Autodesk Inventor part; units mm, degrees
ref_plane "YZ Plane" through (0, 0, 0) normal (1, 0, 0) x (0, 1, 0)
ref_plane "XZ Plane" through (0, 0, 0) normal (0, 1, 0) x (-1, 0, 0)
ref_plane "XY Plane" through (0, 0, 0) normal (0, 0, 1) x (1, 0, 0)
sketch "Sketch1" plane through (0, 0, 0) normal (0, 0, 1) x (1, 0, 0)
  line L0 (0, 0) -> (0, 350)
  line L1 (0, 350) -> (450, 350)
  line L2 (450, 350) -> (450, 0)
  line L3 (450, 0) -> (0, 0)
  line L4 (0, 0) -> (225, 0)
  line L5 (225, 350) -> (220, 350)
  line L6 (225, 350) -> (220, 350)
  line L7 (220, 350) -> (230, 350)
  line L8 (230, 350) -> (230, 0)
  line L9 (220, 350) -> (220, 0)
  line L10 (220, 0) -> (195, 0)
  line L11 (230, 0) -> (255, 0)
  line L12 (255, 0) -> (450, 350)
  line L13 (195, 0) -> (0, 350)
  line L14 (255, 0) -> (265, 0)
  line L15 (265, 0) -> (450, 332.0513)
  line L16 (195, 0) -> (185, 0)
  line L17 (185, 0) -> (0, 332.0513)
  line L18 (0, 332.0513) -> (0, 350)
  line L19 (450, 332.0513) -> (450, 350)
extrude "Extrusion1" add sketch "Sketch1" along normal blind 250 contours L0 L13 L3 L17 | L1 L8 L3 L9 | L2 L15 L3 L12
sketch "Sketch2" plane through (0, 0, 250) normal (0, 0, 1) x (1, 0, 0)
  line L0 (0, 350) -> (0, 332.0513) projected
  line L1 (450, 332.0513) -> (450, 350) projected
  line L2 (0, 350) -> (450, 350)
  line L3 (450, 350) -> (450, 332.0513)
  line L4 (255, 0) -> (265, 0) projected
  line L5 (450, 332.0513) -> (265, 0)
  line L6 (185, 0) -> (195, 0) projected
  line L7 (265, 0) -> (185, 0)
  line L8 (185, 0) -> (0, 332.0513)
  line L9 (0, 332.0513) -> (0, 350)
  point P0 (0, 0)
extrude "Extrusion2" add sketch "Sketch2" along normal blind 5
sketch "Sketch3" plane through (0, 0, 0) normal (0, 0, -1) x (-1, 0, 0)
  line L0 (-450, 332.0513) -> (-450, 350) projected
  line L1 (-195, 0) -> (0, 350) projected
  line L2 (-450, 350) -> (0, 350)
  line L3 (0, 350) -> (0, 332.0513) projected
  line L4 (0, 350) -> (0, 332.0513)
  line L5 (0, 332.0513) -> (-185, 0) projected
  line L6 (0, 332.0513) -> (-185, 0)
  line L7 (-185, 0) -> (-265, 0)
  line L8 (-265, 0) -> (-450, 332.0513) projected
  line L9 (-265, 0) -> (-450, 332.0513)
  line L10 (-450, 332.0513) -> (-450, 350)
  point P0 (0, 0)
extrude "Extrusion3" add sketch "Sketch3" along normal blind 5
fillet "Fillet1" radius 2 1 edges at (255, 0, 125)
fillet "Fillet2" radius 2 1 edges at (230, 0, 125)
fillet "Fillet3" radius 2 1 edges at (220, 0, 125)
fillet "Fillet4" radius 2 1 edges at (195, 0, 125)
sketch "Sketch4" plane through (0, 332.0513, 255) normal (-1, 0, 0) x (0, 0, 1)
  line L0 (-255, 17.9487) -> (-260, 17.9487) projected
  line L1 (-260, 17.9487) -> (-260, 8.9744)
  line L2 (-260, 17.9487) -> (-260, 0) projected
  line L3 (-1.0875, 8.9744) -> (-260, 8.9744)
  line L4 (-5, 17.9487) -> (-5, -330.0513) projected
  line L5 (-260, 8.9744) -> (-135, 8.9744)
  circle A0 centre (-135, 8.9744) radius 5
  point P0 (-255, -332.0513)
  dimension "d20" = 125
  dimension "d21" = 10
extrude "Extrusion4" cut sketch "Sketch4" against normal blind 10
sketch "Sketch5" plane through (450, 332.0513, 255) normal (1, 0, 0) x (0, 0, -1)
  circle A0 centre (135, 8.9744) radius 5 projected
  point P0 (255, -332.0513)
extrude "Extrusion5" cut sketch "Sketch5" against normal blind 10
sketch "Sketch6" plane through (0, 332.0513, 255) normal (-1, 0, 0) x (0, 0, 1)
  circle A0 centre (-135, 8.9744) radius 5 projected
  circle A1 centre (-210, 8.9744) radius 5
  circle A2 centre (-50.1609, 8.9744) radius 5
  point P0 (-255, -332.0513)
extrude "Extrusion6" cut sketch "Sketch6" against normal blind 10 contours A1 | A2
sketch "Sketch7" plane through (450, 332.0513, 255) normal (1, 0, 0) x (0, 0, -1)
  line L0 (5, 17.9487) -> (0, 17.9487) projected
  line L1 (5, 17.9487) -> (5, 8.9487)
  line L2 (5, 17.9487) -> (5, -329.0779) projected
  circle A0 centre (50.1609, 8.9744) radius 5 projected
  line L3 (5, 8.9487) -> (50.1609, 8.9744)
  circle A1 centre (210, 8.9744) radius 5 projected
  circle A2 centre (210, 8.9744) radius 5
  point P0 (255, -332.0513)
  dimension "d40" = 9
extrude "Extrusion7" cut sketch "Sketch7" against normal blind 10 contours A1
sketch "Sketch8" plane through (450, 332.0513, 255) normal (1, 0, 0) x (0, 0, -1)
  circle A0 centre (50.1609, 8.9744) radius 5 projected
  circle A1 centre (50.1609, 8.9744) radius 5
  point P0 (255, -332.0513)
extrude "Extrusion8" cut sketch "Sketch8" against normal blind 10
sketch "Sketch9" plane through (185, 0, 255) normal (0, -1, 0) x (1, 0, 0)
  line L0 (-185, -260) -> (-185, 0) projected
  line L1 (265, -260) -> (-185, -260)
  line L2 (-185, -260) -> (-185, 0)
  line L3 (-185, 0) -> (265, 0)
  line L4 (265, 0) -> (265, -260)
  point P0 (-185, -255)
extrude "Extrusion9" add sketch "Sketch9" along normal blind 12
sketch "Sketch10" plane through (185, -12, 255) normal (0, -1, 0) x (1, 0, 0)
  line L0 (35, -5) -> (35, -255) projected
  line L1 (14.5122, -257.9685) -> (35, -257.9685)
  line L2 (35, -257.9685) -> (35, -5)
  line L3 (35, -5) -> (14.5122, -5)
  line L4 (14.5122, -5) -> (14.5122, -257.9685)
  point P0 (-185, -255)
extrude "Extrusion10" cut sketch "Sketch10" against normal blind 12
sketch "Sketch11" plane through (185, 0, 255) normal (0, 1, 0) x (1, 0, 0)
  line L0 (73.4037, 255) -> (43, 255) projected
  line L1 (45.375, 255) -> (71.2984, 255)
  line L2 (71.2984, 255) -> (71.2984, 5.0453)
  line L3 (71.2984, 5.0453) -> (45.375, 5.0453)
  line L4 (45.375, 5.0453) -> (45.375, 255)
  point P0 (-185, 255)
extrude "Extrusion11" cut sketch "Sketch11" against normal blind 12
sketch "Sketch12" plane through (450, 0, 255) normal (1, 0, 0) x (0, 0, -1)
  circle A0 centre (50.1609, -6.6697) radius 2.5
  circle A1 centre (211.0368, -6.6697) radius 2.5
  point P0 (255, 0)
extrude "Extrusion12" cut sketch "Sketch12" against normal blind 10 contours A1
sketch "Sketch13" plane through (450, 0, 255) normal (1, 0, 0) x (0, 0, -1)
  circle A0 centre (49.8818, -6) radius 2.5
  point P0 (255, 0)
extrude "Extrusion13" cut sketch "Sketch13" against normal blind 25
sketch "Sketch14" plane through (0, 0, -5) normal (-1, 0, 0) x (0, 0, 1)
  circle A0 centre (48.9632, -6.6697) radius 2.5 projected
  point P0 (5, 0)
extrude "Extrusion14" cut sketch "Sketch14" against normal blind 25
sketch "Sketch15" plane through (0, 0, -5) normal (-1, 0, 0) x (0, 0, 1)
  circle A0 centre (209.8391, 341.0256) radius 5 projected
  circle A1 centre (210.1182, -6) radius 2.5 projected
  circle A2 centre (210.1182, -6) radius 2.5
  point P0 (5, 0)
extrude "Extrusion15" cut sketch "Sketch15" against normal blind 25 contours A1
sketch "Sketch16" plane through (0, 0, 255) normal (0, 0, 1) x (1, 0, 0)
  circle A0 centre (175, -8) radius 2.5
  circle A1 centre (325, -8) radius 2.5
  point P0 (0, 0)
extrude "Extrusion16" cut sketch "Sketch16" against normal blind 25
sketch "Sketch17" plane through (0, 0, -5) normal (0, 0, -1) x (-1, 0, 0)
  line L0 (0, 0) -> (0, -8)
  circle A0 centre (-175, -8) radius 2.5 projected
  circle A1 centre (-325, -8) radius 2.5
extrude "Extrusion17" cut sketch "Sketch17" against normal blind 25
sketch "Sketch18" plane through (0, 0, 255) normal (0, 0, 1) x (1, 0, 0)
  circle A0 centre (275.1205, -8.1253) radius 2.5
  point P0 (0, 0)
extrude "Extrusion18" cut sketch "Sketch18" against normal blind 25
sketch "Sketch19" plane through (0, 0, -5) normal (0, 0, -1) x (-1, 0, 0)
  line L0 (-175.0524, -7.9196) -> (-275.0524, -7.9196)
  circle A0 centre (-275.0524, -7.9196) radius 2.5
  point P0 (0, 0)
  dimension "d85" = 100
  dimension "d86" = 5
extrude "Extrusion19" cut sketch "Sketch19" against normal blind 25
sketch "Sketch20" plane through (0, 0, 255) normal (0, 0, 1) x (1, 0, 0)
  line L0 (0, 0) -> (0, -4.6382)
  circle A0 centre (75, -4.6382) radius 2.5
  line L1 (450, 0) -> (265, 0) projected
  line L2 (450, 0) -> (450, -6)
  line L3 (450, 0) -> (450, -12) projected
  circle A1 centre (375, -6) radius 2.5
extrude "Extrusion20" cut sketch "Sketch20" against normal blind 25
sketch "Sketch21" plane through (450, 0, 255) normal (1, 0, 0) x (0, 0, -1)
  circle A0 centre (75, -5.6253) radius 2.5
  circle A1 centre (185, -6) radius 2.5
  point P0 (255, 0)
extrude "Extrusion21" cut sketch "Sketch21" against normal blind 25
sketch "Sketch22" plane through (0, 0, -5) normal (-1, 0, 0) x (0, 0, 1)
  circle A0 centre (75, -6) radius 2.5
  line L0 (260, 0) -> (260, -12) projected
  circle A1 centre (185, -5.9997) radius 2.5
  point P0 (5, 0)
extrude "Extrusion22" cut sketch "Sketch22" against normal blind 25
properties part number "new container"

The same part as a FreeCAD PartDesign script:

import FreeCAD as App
import Part
import Sketcher

V = App.Vector


def edges_at(feature, points):
    """Names of the edges that pass closest to the given points."""
    edges = feature.Shape.Edges
    near = lambda p: min(range(len(edges)), key=lambda i: edges[i].distToShape(Part.Vertex(*p))[0])
    return sorted({f"Edge{near(p) + 1}" for p in points})


def add_polygon(sketch, points):
    """Adds a closed chain of lines whose ends are joined by coincident constraints."""
    first, n = sketch.GeometryCount, len(points)
    for a, b in zip(points, points[1:] + points[:1]):
        sketch.addGeometry(Part.LineSegment(App.Vector(*a, 0), App.Vector(*b, 0)), False)
    for i in range(n):
        sketch.addConstraint(Sketcher.Constraint("Coincident", first + i, 2, first + (i + 1) % n, 1))

doc = App.newDocument("Part")
body = doc.addObject("PartDesign::Body", "Body")
body.AllowCompound = True

sketch1 = body.newObject("Sketcher::SketchObject", "Sketch")
sketch1.AttachmentSupport = (doc.getObject("XY_Plane"), [""])
sketch1.MapMode = "FlatFace"
add_polygon(sketch1, [(0, 350), (0, 332), (185, 0), (195, 0)])
add_polygon(sketch1, [(230, 350), (220, 350), (220, 0), (230, 0)])
add_polygon(sketch1, [(450, 332), (450, 350), (255, 0), (265, 0)])
sketch1.addConstraint([
    Sketcher.Constraint("Vertical", 0),
    Sketcher.Constraint("Horizontal", 2),
    Sketcher.Constraint("Horizontal", 4),
    Sketcher.Constraint("Vertical", 5),
    Sketcher.Constraint("Horizontal", 6),
    Sketcher.Constraint("Vertical", 7),
    Sketcher.Constraint("Vertical", 8),
    Sketcher.Constraint("Horizontal", 10),
    Sketcher.Constraint("PointOnObject", 0, 2, -2),
    Sketcher.Constraint("PointOnObject", 1, 2, -1),
    Sketcher.Constraint("PointOnObject", 5, 2, -1),
    Sketcher.Constraint("PointOnObject", 9, 2, -1),
    Sketcher.Constraint("Parallel", 1, 3),
    Sketcher.Constraint("Parallel", 9, 11),
    Sketcher.Constraint("Horizontal", 3, 2, 4, 2),
    Sketcher.Constraint("Horizontal", 7, 2, 8, 2),
    Sketcher.Constraint("Horizontal", 0, 2, 11, 2),
    Sketcher.Constraint("Equal", 2, 4),
    Sketcher.Constraint("Equal", 6, 10),
    Sketcher.Constraint("DistanceX", 2, 1, 2, 2, 10.0),
    Sketcher.Constraint("DistanceY", 5, 2, 5, 1, 350.0),
    Sketcher.Constraint("DistanceX", -1, 1, 1, 2, 185.0),
    Sketcher.Constraint("DistanceX", -1, 1, 4, 2, 220.0),
    Sketcher.Constraint("DistanceX", -1, 1, 8, 2, 450.0),
])
pad1 = body.newObject("PartDesign::Pad", "Pad")
pad1.Profile = sketch1
pad1.Length = 250

sketch2 = body.newObject("Sketcher::SketchObject", "Sketch001")
sketch2.AttachmentSupport = (doc.getObject("XY_Plane"), [""])
sketch2.MapMode = "FlatFace"
sketch2.AttachmentOffset = App.Placement(V(0, 0, 250), App.Rotation())
add_polygon(sketch2, [(450, 350), (0, 350), (0, 332), (185, 0), (265, 0), (450, 332)])
sketch2.addConstraint([
    Sketcher.Constraint("Horizontal", 0),
    Sketcher.Constraint("Vertical", 1),
    Sketcher.Constraint("Horizontal", 3),
    Sketcher.Constraint("Vertical", 5),
    Sketcher.Constraint("PointOnObject", 0, 2, -2),
    Sketcher.Constraint("PointOnObject", 2, 2, -1),
    Sketcher.Constraint("Horizontal", 1, 2, 4, 2),
    Sketcher.Constraint("Equal", 2, 4),
    Sketcher.Constraint("DistanceX", 0, 2, 0, 1, 450.0),
    Sketcher.Constraint("DistanceX", 3, 1, 3, 2, 80.0),
    Sketcher.Constraint("DistanceY", -1, 1, 0, 2, 350.0),
    Sketcher.Constraint("DistanceY", 1, 2, 1, 1, 17.9487),
])
pad2 = body.newObject("PartDesign::Pad", "Pad001")
pad2.Profile = sketch2
pad2.Length = 5

sketch3 = body.newObject("Sketcher::SketchObject", "Sketch002")
sketch3.AttachmentSupport = (doc.getObject("XY_Plane"), [""])
sketch3.MapMode = "FlatFace"
add_polygon(sketch3, [(450, 350), (450, 332), (265, 0), (185, 0), (0, 332), (0, 350)])
sketch3.addConstraint([
    Sketcher.Constraint("Vertical", 0),
    Sketcher.Constraint("Horizontal", 2),
    Sketcher.Constraint("Vertical", 4),
    Sketcher.Constraint("Horizontal", 5),
    Sketcher.Constraint("PointOnObject", 1, 2, -1),
    Sketcher.Constraint("PointOnObject", 3, 2, -2),
    Sketcher.Constraint("Horizontal", 0, 2, 3, 2),
    Sketcher.Constraint("Equal", 1, 3),
    Sketcher.Constraint("DistanceX", 2, 2, 2, 1, 80.0),
    Sketcher.Constraint("DistanceX", 5, 1, 5, 2, 450.0),
    Sketcher.Constraint("DistanceY", -1, 1, 4, 2, 350.0),
    Sketcher.Constraint("DistanceY", 0, 2, 0, 1, 17.9487),
])
pad3 = body.newObject("PartDesign::Pad", "Pad002")
pad3.Profile = sketch3
pad3.Length = 5
pad3.Reversed = True
doc.recompute()

fillet = body.newObject("PartDesign::Fillet", "Fillet")
fillet.Base = (pad3, edges_at(pad3, [(255, 0, 125)]))
fillet.Radius = 2
doc.recompute()

fillet2 = body.newObject("PartDesign::Fillet", "Fillet001")
fillet2.Base = (fillet, edges_at(fillet, [(230, 0, 125)]))
fillet2.Radius = 2
doc.recompute()

fillet3 = body.newObject("PartDesign::Fillet", "Fillet002")
fillet3.Base = (fillet2, edges_at(fillet2, [(220, 0, 125)]))
fillet3.Radius = 2
doc.recompute()

fillet4 = body.newObject("PartDesign::Fillet", "Fillet003")
fillet4.Base = (fillet3, edges_at(fillet3, [(195, 0, 125)]))
fillet4.Radius = 2

sketch4 = body.newObject("Sketcher::SketchObject", "Sketch003")
sketch4.AttachmentSupport = (doc.getObject("YZ_Plane"), [""])
sketch4.MapMode = "FlatFace"
sketch4.addGeometry(Part.Circle(V(341, 120, 0), V(0, 0, 1), 5), False)
sketch4.addConstraint([
    Sketcher.Constraint("Diameter", 0, 10.0),
    Sketcher.Constraint("DistanceY", -1, 1, 0, 3, 120.0),
    Sketcher.Constraint("DistanceX", -1, 1, 0, 3, 341.0257),
])
pocket1 = body.newObject("PartDesign::Pocket", "Pocket")
pocket1.Profile = sketch4
pocket1.Length = 10
pocket1.Reversed = True

sketch5 = body.newObject("Sketcher::SketchObject", "Sketch004")
sketch5.AttachmentSupport = (doc.getObject("YZ_Plane"), [""])
sketch5.MapMode = "FlatFace"
sketch5.AttachmentOffset = App.Placement(V(0, 0, 450), App.Rotation())
sketch5.addGeometry(Part.Circle(V(341, 120, 0), V(0, 0, 1), 5), False)
sketch5.addConstraint([
    Sketcher.Constraint("Diameter", 0, 10.0),
    Sketcher.Constraint("DistanceY", -1, 1, 0, 3, 120.0),
    Sketcher.Constraint("DistanceX", -1, 1, 0, 3, 341.0257),
])
pocket2 = body.newObject("PartDesign::Pocket", "Pocket001")
pocket2.Profile = sketch5
pocket2.Length = 10

sketch6 = body.newObject("Sketcher::SketchObject", "Sketch005")
sketch6.AttachmentSupport = (doc.getObject("YZ_Plane"), [""])
sketch6.MapMode = "FlatFace"
sketch6.addGeometry([
    Part.Circle(V(341, 45, 0), V(0, 0, 1), 5),
    Part.Circle(V(341, 205, 0), V(0, 0, 1), 5),
], False)
sketch6.addConstraint([
    Sketcher.Constraint("Equal", 0, 1),
    Sketcher.Constraint("Vertical", 0, 3, 1, 3),
    Sketcher.Constraint("Diameter", 0, 10.0),
    Sketcher.Constraint("DistanceY", -1, 1, 0, 3, 45.0),
    Sketcher.Constraint("DistanceY", -1, 1, 1, 3, 204.839),
    Sketcher.Constraint("DistanceX", -1, 1, 0, 3, 341.0257),
])
pocket3 = body.newObject("PartDesign::Pocket", "Pocket002")
pocket3.Profile = sketch6
pocket3.Length = 10
pocket3.Reversed = True

sketch7 = body.newObject("Sketcher::SketchObject", "Sketch006")
sketch7.AttachmentSupport = (doc.getObject("YZ_Plane"), [""])
sketch7.MapMode = "FlatFace"
sketch7.AttachmentOffset = App.Placement(V(0, 0, 450), App.Rotation())
sketch7.addGeometry(Part.Circle(V(341, 45, 0), V(0, 0, 1), 5), False)
sketch7.addConstraint([
    Sketcher.Constraint("Diameter", 0, 10.0),
    Sketcher.Constraint("DistanceY", -1, 1, 0, 3, 45.0),
    Sketcher.Constraint("DistanceX", -1, 1, 0, 3, 341.0257),
])
pocket4 = body.newObject("PartDesign::Pocket", "Pocket003")
pocket4.Profile = sketch7
pocket4.Length = 10

sketch8 = body.newObject("Sketcher::SketchObject", "Sketch007")
sketch8.AttachmentSupport = (doc.getObject("YZ_Plane"), [""])
sketch8.MapMode = "FlatFace"
sketch8.AttachmentOffset = App.Placement(V(0, 0, 450), App.Rotation())
sketch8.addGeometry(Part.Circle(V(341, 205, 0), V(0, 0, 1), 5), False)
sketch8.addConstraint([
    Sketcher.Constraint("Diameter", 0, 10.0),
    Sketcher.Constraint("DistanceY", -1, 1, 0, 3, 204.839),
    Sketcher.Constraint("DistanceX", -1, 1, 0, 3, 341.0257),
])
pocket5 = body.newObject("PartDesign::Pocket", "Pocket004")
pocket5.Profile = sketch8
pocket5.Length = 10

sketch9 = body.newObject("Sketcher::SketchObject", "Sketch008")
sketch9.AttachmentSupport = (doc.getObject("XZ_Plane"), [""])
sketch9.MapMode = "FlatFace"
add_polygon(sketch9, [(0, 255), (0, -5), (450, -5), (450, 255)])
sketch9.addConstraint([
    Sketcher.Constraint("Vertical", 0),
    Sketcher.Constraint("Horizontal", 1),
    Sketcher.Constraint("Vertical", 2),
    Sketcher.Constraint("Horizontal", 3),
    Sketcher.Constraint("PointOnObject", 0, 2, -2),
    Sketcher.Constraint("DistanceX", 1, 1, 1, 2, 450.0),
    Sketcher.Constraint("DistanceY", 0, 2, 0, 1, 260.0),
    Sketcher.Constraint("DistanceY", 0, 2, -1, 1, 5.0),
])
pad4 = body.newObject("PartDesign::Pad", "Pad003")
pad4.Profile = sketch9
pad4.Length = 12

sketch10 = body.newObject("Sketcher::SketchObject", "Sketch009")
sketch10.AttachmentSupport = (doc.getObject("XZ_Plane"), [""])
sketch10.MapMode = "FlatFace"
sketch10.AttachmentOffset = App.Placement(V(0, 0, 12), App.Rotation())
add_polygon(sketch10, [(220, -3), (220, 250), (200, 250), (200, -3)])
sketch10.addConstraint([
    Sketcher.Constraint("Vertical", 0),
    Sketcher.Constraint("Horizontal", 1),
    Sketcher.Constraint("Vertical", 2),
    Sketcher.Constraint("Horizontal", 3),
    Sketcher.Constraint("DistanceX", -1, 1, 0, 2, 220.0),
    Sketcher.Constraint("DistanceY", -1, 1, 0, 2, 250.0),
    Sketcher.Constraint("DistanceX", 1, 2, 1, 1, 20.4878),
    Sketcher.Constraint("DistanceY", 0, 1, 0, 2, 252.9685),
])
pocket6 = body.newObject("PartDesign::Pocket", "Pocket005")
pocket6.Profile = sketch10
pocket6.Length = 12

sketch11 = body.newObject("Sketcher::SketchObject", "Sketch010")
sketch11.AttachmentSupport = (doc.getObject("XZ_Plane"), [""])
sketch11.MapMode = "FlatFace"
add_polygon(sketch11, [(256, 250), (256, 0), (230, 0), (230, 250)])
sketch11.addConstraint([
    Sketcher.Constraint("Vertical", 0),
    Sketcher.Constraint("Horizontal", 1),
    Sketcher.Constraint("Vertical", 2),
    Sketcher.Constraint("Horizontal", 3),
    Sketcher.Constraint("PointOnObject", 0, 2, -1),
    Sketcher.Constraint("DistanceX", 1, 2, 1, 1, 25.9234),
    Sketcher.Constraint("DistanceY", 0, 2, 0, 1, 249.9547),
    Sketcher.Constraint("DistanceX", -1, 1, 1, 2, 230.375),
])
pocket7 = body.newObject("PartDesign::Pocket", "Pocket006")
pocket7.Profile = sketch11
pocket7.Length = 12
pocket7.Reversed = True

sketch12 = body.newObject("Sketcher::SketchObject", "Sketch011")
sketch12.AttachmentSupport = (doc.getObject("YZ_Plane"), [""])
sketch12.MapMode = "FlatFace"
sketch12.AttachmentOffset = App.Placement(V(0, 0, 450), App.Rotation())
sketch12.addGeometry(Part.Circle(V(-6.7, 44, 0), V(0, 0, 1), 2.5), False)
sketch12.addConstraint([
    Sketcher.Constraint("Diameter", 0, 5.0),
    Sketcher.Constraint("DistanceX", 0, 3, -1, 1, 6.6697),
    Sketcher.Constraint("DistanceY", -1, 1, 0, 3, 43.9632),
])
pocket8 = body.newObject("PartDesign::Pocket", "Pocket007")
pocket8.Profile = sketch12
pocket8.Length = 10

sketch13 = body.newObject("Sketcher::SketchObject", "Sketch012")
sketch13.AttachmentSupport = (doc.getObject("YZ_Plane"), [""])
sketch13.MapMode = "FlatFace"
sketch13.AttachmentOffset = App.Placement(V(0, 0, 450), App.Rotation())
sketch13.addGeometry(Part.Circle(V(-6, 205.1, 0), V(0, 0, 1), 2.5), False)
sketch13.addConstraint([
    Sketcher.Constraint("Diameter", 0, 5.0),
    Sketcher.Constraint("DistanceX", 0, 3, -1, 1, 6.0),
    Sketcher.Constraint("DistanceY", -1, 1, 0, 3, 205.1182),
])
pocket9 = body.newObject("PartDesign::Pocket", "Pocket008")
pocket9.Profile = sketch13
pocket9.Length = 25

sketch14 = body.newObject("Sketcher::SketchObject", "Sketch013")
sketch14.AttachmentSupport = (doc.getObject("YZ_Plane"), [""])
sketch14.MapMode = "FlatFace"
sketch14.addGeometry(Part.Circle(V(-6.7, 44, 0), V(0, 0, 1), 2.5), False)
sketch14.addConstraint([
    Sketcher.Constraint("Diameter", 0, 5.0),
    Sketcher.Constraint("DistanceX", 0, 3, -1, 1, 6.6697),
    Sketcher.Constraint("DistanceY", -1, 1, 0, 3, 43.9632),
])
pocket10 = body.newObject("PartDesign::Pocket", "Pocket009")
pocket10.Profile = sketch14
pocket10.Length = 25
pocket10.Reversed = True

sketch15 = body.newObject("Sketcher::SketchObject", "Sketch014")
sketch15.AttachmentSupport = (doc.getObject("YZ_Plane"), [""])
sketch15.MapMode = "FlatFace"
sketch15.addGeometry(Part.Circle(V(-6, 205.1, 0), V(0, 0, 1), 2.5), False)
sketch15.addConstraint([
    Sketcher.Constraint("Diameter", 0, 5.0),
    Sketcher.Constraint("DistanceX", 0, 3, -1, 1, 6.0),
    Sketcher.Constraint("DistanceY", -1, 1, 0, 3, 205.1182),
])
pocket11 = body.newObject("PartDesign::Pocket", "Pocket010")
pocket11.Profile = sketch15
pocket11.Length = 25
pocket11.Reversed = True

sketch16 = body.newObject("Sketcher::SketchObject", "Sketch015")
sketch16.AttachmentSupport = (doc.getObject("XY_Plane"), [""])
sketch16.MapMode = "FlatFace"
sketch16.AttachmentOffset = App.Placement(V(0, 0, 255), App.Rotation())
sketch16.addGeometry([
    Part.Circle(V(175, -8, 0), V(0, 0, 1), 2.5),
    Part.Circle(V(325, -8, 0), V(0, 0, 1), 2.5),
], False)
sketch16.addConstraint([
    Sketcher.Constraint("Equal", 0, 1),
    Sketcher.Constraint("Horizontal", 0, 3, 1, 3),
    Sketcher.Constraint("Diameter", 0, 5.0),
    Sketcher.Constraint("DistanceX", -1, 1, 0, 3, 175.0),
    Sketcher.Constraint("DistanceY", 0, 3, -1, 1, 8.0),
    Sketcher.Constraint("DistanceX", -1, 1, 1, 3, 325.0),
])
pocket12 = body.newObject("PartDesign::Pocket", "Pocket011")
pocket12.Profile = sketch16
pocket12.Length = 25

sketch17 = body.newObject("Sketcher::SketchObject", "Sketch016")
sketch17.AttachmentSupport = (doc.getObject("XY_Plane"), [""])
sketch17.MapMode = "FlatFace"
sketch17.AttachmentOffset = App.Placement(V(0, 0, -5), App.Rotation())
sketch17.addGeometry([
    Part.Circle(V(175, -8, 0), V(0, 0, 1), 2.5),
    Part.Circle(V(325, -8, 0), V(0, 0, 1), 2.5),
], False)
sketch17.addConstraint([
    Sketcher.Constraint("Equal", 0, 1),
    Sketcher.Constraint("Horizontal", 0, 3, 1, 3),
    Sketcher.Constraint("Diameter", 0, 5.0),
    Sketcher.Constraint("DistanceX", -1, 1, 0, 3, 175.0),
    Sketcher.Constraint("DistanceY", 0, 3, -1, 1, 8.0),
    Sketcher.Constraint("DistanceX", -1, 1, 1, 3, 325.0),
])
pocket13 = body.newObject("PartDesign::Pocket", "Pocket012")
pocket13.Profile = sketch17
pocket13.Length = 25
pocket13.Reversed = True

sketch18 = body.newObject("Sketcher::SketchObject", "Sketch017")
sketch18.AttachmentSupport = (doc.getObject("XY_Plane"), [""])
sketch18.MapMode = "FlatFace"
sketch18.AttachmentOffset = App.Placement(V(0, 0, 255), App.Rotation())
sketch18.addGeometry(Part.Circle(V(275.1, -8.1, 0), V(0, 0, 1), 2.5), False)
sketch18.addConstraint([
    Sketcher.Constraint("Diameter", 0, 5.0),
    Sketcher.Constraint("DistanceX", -1, 1, 0, 3, 275.1205),
    Sketcher.Constraint("DistanceY", 0, 3, -1, 1, 8.1253),
])
pocket14 = body.newObject("PartDesign::Pocket", "Pocket013")
pocket14.Profile = sketch18
pocket14.Length = 25

sketch19 = body.newObject("Sketcher::SketchObject", "Sketch018")
sketch19.AttachmentSupport = (doc.getObject("XY_Plane"), [""])
sketch19.MapMode = "FlatFace"
sketch19.AttachmentOffset = App.Placement(V(0, 0, -5), App.Rotation())
sketch19.addGeometry(Part.Circle(V(275.1, -7.9, 0), V(0, 0, 1), 2.5), False)
sketch19.addConstraint([
    Sketcher.Constraint("Diameter", 0, 5.0),
    Sketcher.Constraint("DistanceX", -1, 1, 0, 3, 275.0524),
    Sketcher.Constraint("DistanceY", 0, 3, -1, 1, 7.9196),
])
pocket15 = body.newObject("PartDesign::Pocket", "Pocket014")
pocket15.Profile = sketch19
pocket15.Length = 25
pocket15.Reversed = True

sketch20 = body.newObject("Sketcher::SketchObject", "Sketch019")
sketch20.AttachmentSupport = (doc.getObject("XY_Plane"), [""])
sketch20.MapMode = "FlatFace"
sketch20.AttachmentOffset = App.Placement(V(0, 0, 255), App.Rotation())
sketch20.addGeometry([
    Part.Circle(V(75, -4.6, 0), V(0, 0, 1), 2.5),
    Part.Circle(V(375, -6, 0), V(0, 0, 1), 2.5),
], False)
sketch20.addConstraint([
    Sketcher.Constraint("Equal", 0, 1),
    Sketcher.Constraint("Diameter", 0, 5.0),
    Sketcher.Constraint("DistanceX", -1, 1, 0, 3, 75.0),
    Sketcher.Constraint("DistanceX", -1, 1, 1, 3, 375.0),
    Sketcher.Constraint("DistanceY", 1, 3, -1, 1, 6.0),
    Sketcher.Constraint("DistanceY", 0, 3, -1, 1, 4.6382),
])
pocket16 = body.newObject("PartDesign::Pocket", "Pocket015")
pocket16.Profile = sketch20
pocket16.Length = 25

sketch21 = body.newObject("Sketcher::SketchObject", "Sketch020")
sketch21.AttachmentSupport = (doc.getObject("YZ_Plane"), [""])
sketch21.MapMode = "FlatFace"
sketch21.AttachmentOffset = App.Placement(V(0, 0, 450), App.Rotation())
sketch21.addGeometry([
    Part.Circle(V(-5.6, 180, 0), V(0, 0, 1), 2.5),
    Part.Circle(V(-6, 70, 0), V(0, 0, 1), 2.5),
], False)
sketch21.addConstraint([
    Sketcher.Constraint("Equal", 0, 1),
    Sketcher.Constraint("Diameter", 0, 5.0),
    Sketcher.Constraint("DistanceY", -1, 1, 0, 3, 180.0),
    Sketcher.Constraint("DistanceX", 1, 3, -1, 1, 6.0),
    Sketcher.Constraint("DistanceY", -1, 1, 1, 3, 70.0),
    Sketcher.Constraint("DistanceX", 0, 3, -1, 1, 5.6253),
])
pocket17 = body.newObject("PartDesign::Pocket", "Pocket016")
pocket17.Profile = sketch21
pocket17.Length = 25

sketch22 = body.newObject("Sketcher::SketchObject", "Sketch021")
sketch22.AttachmentSupport = (doc.getObject("YZ_Plane"), [""])
sketch22.MapMode = "FlatFace"
sketch22.addGeometry([
    Part.Circle(V(-6, 70, 0), V(0, 0, 1), 2.5),
    Part.Circle(V(-6, 180, 0), V(0, 0, 1), 2.5),
], False)
sketch22.addConstraint([
    Sketcher.Constraint("Equal", 0, 1),
    Sketcher.Constraint("Diameter", 0, 5.0),
    Sketcher.Constraint("DistanceX", 0, 3, -1, 1, 6.0),
    Sketcher.Constraint("DistanceY", -1, 1, 0, 3, 70.0),
    Sketcher.Constraint("DistanceY", -1, 1, 1, 3, 180.0),
    Sketcher.Constraint("DistanceX", 1, 3, -1, 1, 5.9997),
])
pocket18 = body.newObject("PartDesign::Pocket", "Pocket017")
pocket18.Profile = sketch22
pocket18.Length = 25
pocket18.Reversed = True

doc.recompute()
